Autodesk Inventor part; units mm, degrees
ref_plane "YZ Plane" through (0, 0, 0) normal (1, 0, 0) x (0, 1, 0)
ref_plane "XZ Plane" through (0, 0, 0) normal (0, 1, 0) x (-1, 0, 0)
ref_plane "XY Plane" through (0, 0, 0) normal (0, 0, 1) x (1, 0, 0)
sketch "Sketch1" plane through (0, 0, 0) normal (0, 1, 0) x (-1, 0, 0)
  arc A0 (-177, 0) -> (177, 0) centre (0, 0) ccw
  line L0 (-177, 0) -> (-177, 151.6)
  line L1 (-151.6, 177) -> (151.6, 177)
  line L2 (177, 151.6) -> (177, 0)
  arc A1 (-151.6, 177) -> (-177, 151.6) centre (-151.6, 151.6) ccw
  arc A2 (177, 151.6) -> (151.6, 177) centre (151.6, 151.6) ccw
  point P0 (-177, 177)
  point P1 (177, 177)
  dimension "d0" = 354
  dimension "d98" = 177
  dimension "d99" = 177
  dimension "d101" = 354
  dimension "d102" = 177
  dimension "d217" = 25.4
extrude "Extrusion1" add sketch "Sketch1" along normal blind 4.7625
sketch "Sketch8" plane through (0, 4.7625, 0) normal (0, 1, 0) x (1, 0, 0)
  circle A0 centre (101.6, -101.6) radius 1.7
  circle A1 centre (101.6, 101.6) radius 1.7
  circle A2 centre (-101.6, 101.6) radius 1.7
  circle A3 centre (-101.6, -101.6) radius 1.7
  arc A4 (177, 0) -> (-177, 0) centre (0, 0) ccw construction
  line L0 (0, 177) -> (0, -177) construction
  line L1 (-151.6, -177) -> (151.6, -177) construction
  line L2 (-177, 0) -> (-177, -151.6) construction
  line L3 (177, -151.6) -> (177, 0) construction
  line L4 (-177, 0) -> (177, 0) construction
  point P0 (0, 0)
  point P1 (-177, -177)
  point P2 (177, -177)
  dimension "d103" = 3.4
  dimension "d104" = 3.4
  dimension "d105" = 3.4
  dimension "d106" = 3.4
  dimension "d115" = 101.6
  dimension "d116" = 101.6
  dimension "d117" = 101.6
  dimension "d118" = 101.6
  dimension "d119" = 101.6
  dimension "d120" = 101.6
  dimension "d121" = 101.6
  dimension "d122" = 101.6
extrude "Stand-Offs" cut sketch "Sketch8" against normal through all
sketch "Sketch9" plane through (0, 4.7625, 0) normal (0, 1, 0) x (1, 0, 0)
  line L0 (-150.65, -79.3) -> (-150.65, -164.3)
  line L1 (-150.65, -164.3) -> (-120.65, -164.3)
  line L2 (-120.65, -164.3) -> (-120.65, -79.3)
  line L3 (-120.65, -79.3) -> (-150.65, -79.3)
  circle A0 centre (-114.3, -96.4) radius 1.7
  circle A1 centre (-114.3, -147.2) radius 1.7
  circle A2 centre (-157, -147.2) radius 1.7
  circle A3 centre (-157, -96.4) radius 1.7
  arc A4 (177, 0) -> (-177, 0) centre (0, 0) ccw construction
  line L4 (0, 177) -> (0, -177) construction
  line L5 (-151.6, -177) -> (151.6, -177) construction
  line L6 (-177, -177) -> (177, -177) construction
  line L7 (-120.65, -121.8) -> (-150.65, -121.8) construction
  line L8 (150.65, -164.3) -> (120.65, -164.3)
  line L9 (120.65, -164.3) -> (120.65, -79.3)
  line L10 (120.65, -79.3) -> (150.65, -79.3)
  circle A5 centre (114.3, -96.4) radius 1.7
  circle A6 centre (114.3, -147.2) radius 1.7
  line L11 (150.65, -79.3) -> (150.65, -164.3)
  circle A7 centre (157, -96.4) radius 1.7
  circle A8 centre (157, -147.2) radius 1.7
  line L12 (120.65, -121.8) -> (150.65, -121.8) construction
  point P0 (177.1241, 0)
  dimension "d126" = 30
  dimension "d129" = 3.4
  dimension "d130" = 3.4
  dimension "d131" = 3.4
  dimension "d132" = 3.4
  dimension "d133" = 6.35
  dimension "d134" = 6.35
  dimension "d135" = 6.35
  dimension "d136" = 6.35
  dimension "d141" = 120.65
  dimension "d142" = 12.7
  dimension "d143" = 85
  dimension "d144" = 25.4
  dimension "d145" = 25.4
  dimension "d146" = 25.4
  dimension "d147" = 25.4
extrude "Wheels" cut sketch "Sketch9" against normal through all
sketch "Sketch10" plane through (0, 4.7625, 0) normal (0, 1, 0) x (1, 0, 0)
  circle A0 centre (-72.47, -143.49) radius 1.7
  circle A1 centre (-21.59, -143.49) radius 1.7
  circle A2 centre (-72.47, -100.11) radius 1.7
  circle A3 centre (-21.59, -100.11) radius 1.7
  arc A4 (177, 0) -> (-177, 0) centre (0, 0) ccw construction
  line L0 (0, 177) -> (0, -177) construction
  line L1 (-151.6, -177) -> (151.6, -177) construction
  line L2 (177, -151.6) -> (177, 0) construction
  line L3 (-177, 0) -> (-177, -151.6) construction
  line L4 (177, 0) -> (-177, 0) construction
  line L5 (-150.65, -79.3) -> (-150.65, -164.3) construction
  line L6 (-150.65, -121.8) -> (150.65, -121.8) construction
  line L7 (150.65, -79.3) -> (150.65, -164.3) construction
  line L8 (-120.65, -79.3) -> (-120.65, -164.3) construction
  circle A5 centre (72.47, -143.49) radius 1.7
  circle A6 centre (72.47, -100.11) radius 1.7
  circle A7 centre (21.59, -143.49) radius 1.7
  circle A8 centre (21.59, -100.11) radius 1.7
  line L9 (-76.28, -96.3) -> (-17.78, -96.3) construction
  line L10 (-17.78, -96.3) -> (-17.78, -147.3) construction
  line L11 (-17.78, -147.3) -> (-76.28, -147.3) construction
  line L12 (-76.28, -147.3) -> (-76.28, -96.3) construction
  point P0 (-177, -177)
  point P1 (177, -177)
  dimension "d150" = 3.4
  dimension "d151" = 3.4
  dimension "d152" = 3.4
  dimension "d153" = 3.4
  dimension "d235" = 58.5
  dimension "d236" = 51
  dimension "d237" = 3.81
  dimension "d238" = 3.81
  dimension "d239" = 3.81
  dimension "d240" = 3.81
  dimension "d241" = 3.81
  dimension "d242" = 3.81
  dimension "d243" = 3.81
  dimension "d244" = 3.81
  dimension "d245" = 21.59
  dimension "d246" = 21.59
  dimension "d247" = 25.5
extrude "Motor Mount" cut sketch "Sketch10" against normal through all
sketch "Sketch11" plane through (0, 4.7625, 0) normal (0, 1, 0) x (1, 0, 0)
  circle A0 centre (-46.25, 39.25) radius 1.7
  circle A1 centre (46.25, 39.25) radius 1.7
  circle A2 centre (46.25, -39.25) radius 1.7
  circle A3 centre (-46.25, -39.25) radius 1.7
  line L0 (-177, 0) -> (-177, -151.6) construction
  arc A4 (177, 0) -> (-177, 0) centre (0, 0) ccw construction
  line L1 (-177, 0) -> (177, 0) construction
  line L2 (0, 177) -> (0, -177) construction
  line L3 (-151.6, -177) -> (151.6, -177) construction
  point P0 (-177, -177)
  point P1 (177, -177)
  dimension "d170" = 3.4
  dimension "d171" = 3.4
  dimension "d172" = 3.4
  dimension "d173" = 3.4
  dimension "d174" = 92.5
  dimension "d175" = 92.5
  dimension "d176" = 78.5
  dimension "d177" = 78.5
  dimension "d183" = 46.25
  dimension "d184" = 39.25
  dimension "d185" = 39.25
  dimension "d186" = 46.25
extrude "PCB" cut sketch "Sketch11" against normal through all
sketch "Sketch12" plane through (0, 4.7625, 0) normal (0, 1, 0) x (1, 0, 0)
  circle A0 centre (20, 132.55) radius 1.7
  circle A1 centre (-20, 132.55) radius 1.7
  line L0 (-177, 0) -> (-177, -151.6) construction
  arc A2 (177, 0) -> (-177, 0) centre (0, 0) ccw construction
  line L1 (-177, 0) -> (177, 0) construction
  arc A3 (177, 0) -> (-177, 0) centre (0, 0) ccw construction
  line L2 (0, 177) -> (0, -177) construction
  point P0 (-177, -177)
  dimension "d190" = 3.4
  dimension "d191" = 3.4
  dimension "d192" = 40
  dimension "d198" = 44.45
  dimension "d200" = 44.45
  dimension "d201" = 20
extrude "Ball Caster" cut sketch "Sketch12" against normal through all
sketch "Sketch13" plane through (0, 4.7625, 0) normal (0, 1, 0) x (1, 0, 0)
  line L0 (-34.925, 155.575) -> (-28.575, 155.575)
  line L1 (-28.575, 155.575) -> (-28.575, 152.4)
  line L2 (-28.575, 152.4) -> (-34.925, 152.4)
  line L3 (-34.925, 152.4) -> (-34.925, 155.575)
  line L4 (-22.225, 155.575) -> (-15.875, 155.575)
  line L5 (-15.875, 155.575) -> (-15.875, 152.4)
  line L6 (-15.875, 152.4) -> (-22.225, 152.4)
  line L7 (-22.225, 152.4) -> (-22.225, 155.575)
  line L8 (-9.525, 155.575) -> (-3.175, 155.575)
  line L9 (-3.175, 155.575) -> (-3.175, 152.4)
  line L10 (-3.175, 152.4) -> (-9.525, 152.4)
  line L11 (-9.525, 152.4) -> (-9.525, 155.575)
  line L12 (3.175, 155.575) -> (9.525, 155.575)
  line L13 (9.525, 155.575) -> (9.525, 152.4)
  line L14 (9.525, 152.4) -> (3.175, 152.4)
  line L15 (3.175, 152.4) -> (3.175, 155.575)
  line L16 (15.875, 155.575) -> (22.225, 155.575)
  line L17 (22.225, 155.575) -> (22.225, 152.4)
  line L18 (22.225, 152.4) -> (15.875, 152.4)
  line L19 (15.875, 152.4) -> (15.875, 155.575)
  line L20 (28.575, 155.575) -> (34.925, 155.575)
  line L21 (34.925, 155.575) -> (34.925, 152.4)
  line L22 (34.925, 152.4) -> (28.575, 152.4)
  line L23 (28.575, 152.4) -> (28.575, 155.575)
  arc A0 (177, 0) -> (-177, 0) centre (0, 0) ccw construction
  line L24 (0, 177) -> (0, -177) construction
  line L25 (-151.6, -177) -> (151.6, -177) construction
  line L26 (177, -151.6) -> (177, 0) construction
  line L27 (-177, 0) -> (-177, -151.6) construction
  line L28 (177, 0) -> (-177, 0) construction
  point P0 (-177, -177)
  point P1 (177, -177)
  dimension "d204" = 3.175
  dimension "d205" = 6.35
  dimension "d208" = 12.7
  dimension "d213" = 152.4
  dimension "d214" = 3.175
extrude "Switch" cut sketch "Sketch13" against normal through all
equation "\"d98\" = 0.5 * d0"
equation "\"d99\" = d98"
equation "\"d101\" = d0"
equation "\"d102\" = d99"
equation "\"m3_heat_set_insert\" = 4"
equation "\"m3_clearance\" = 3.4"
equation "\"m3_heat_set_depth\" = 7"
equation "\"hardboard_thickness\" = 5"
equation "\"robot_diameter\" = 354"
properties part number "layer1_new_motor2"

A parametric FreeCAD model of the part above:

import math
import FreeCAD as App
import Part
import Sketcher
Q = App.Units.Quantity


def add_polygon(sketch, points):
    """Adds a closed chain of lines whose ends are joined by coincident constraints."""
    first, n = sketch.GeometryCount, len(points)
    for a, b in zip(points, points[1:] + points[:1]):
        sketch.addGeometry(Part.LineSegment(App.Vector(*a, 0), App.Vector(*b, 0)), False)
    for i in range(n):
        sketch.addConstraint(Sketcher.Constraint("Coincident", first + i, 2, first + (i + 1) % n, 1))

doc = App.newDocument("Part")
params = doc.addObject("Spreadsheet::Sheet", "Params")
for row, (alias, value) in enumerate([
    ("sketch1_radius", "1 in"),
    ("pad1_length", "0.1875 in"),
    ("sketch7_width", "0.25 in"),
    ("sketch7_height", "0.125 in"),
], start=1):
    params.set(f"A{row}", alias)
    params.set(f"B{row}", "=" + value)
    params.setAlias(f"B{row}", alias)

body = doc.addObject("PartDesign::Body", "Body")

# Sketch on XZ plane
sketch1 = body.newObject("Sketcher::SketchObject", "Sketch")
sketch1.AttachmentSupport = (doc.getObject("XZ_Plane"), [""])
sketch1.MapMode = "FlatFace"
sketch1.addGeometry([
    Part.LineSegment(App.Vector(177, 152, 0), App.Vector(177, 0, 0)),  # 0
    Part.ArcOfCircle(Part.Circle(App.Vector(0, 0, 0), App.Vector(0, 0, 1), 177), math.radians(180), math.radians(360)),  # 1
    Part.LineSegment(App.Vector(-177, 0, 0), App.Vector(-177, 152, 0)),  # 2
    Part.ArcOfCircle(Part.Circle(App.Vector(-152, 152, 0), App.Vector(0, 0, 1), 25), math.radians(90), math.radians(180)),  # 3
    Part.LineSegment(App.Vector(-152, 177, 0), App.Vector(152, 177, 0)),  # 4
    Part.ArcOfCircle(Part.Circle(App.Vector(152, 152, 0), App.Vector(0, 0, 1), 25), math.radians(0), math.radians(90)),  # 5
], False)
sketch1.addConstraint([
    Sketcher.Constraint("Tangent", 0, 2, 1, 2),
    Sketcher.Constraint("Tangent", 1, 1, 2, 1),
    Sketcher.Constraint("Tangent", 2, 2, 3, 2),
    Sketcher.Constraint("Tangent", 3, 1, 4, 1),
    Sketcher.Constraint("Tangent", 4, 2, 5, 2),
    Sketcher.Constraint("Tangent", 5, 1, 0, 1),
    Sketcher.Constraint("Vertical", 0),
    Sketcher.Constraint("Vertical", 2),
    Sketcher.Constraint("Horizontal", 4),
    Sketcher.Constraint("Coincident", 1, 3, -1, 1),
    Sketcher.Constraint("Equal", 3, 5),
    Sketcher.Constraint("Radius", 3, Q("1 in")),
    Sketcher.Constraint("Radius", 1, Q("6.9685 in")),
    Sketcher.Constraint("DistanceY", -1, 1, 3, 1, Q("6.9685 in")),
])
sketch1.setExpression("Constraints[11]", "Params.sketch1_radius")
pad1 = body.newObject("PartDesign::Pad", "Pad")
pad1.Profile = sketch1
pad1.setExpression("Length", "Params.pad1_length")
pad1.Reversed = True

# Sketch on XZ plane
sketch2 = body.newObject("Sketcher::SketchObject", "Sketch001")
sketch2.AttachmentSupport = (doc.getObject("XZ_Plane"), [""])
sketch2.MapMode = "FlatFace"
sketch2.AttachmentOffset = App.Placement(App.Vector(0, 0, -0.1875 * 25.4), App.Rotation())
sketch2.addGeometry([
    Part.Circle(App.Vector(101.6, 101.6, 0), App.Vector(0, 0, 1), 1.7),
    Part.Circle(App.Vector(101.6, -101.6, 0), App.Vector(0, 0, 1), 1.7),
    Part.Circle(App.Vector(-101.6, -101.6, 0), App.Vector(0, 0, 1), 1.7),
    Part.Circle(App.Vector(-101.6, 101.6, 0), App.Vector(0, 0, 1), 1.7),
], False)
sketch2.addConstraint([
    Sketcher.Constraint("Equal", 0, 1),
    Sketcher.Constraint("Equal", 1, 2),
    Sketcher.Constraint("Equal", 2, 3),
    Sketcher.Constraint("Symmetric", 0, 3, 2, 3, -1, 1),
    Sketcher.Constraint("Symmetric", 1, 3, 3, 3, -1, 1),
    Sketcher.Constraint("Symmetric", 1, 3, 2, 3, -2),
    Sketcher.Constraint("DistanceX", -1, 1, 0, 3, Q("4 in")),
    Sketcher.Constraint("DistanceY", -1, 1, 0, 3, Q("4 in")),
    Sketcher.Constraint("Diameter", 0, Q("3.4 mm")),
])
pocket1 = body.newObject("PartDesign::Pocket", "Pocket")
pocket1.Profile = sketch2
pocket1.Type = "ThroughAll"
pocket1.Reversed = True

# Sketch on XZ plane
sketch3 = body.newObject("Sketcher::SketchObject", "Sketch002")
sketch3.AttachmentSupport = (doc.getObject("XZ_Plane"), [""])
sketch3.MapMode = "FlatFace"
sketch3.AttachmentOffset = App.Placement(App.Vector(0, 0, -0.1875 * 25.4), App.Rotation())
add_polygon(sketch3, [(-120.7, 79.3), (-150.7, 79.3), (-150.7, 164.3), (-120.7, 164.3)])  # lines 0-3
sketch3.addGeometry(Part.Circle(App.Vector(-114.3, 96.4, 0), App.Vector(0, 0, 1), 1.7), False)  # 4
sketch3.addGeometry(Part.Circle(App.Vector(-114.3, 147.2, 0), App.Vector(0, 0, 1), 1.7), False)  # 5
sketch3.addGeometry(Part.Circle(App.Vector(-157, 147.2, 0), App.Vector(0, 0, 1), 1.7), False)  # 6
sketch3.addGeometry(Part.Circle(App.Vector(-157, 96.4, 0), App.Vector(0, 0, 1), 1.7), False)  # 7
add_polygon(sketch3, [(120.7, 164.3), (150.7, 164.3), (150.7, 79.3), (120.7, 79.3)])  # lines 8-11
sketch3.addGeometry(Part.Circle(App.Vector(114.3, 96.4, 0), App.Vector(0, 0, 1), 1.7), False)  # 12
sketch3.addGeometry(Part.Circle(App.Vector(114.3, 147.2, 0), App.Vector(0, 0, 1), 1.7), False)  # 13
sketch3.addGeometry(Part.Circle(App.Vector(157, 96.4, 0), App.Vector(0, 0, 1), 1.7), False)  # 14
sketch3.addGeometry(Part.Circle(App.Vector(157, 147.2, 0), App.Vector(0, 0, 1), 1.7), False)  # 15
sketch3.addConstraint([
    Sketcher.Constraint("Horizontal", 0),
    Sketcher.Constraint("Vertical", 1),
    Sketcher.Constraint("Horizontal", 2),
    Sketcher.Constraint("Vertical", 3),
    Sketcher.Constraint("Horizontal", 8),
    Sketcher.Constraint("Vertical", 9),
    Sketcher.Constraint("Horizontal", 10),
    Sketcher.Constraint("Vertical", 11),
    Sketcher.Constraint("Equal", 4, 5),
    Sketcher.Constraint("Equal", 5, 6),
    Sketcher.Constraint("Equal", 6, 7),
    Sketcher.Constraint("Equal", 7, 12),
    Sketcher.Constraint("Equal", 12, 13),
    Sketcher.Constraint("Equal", 13, 14),
    Sketcher.Constraint("Equal", 14, 15),
    Sketcher.Constraint("Symmetric", 4, 3, 12, 3, -2),
    Sketcher.Constraint("Symmetric", 5, 3, 13, 3, -2),
    Sketcher.Constraint("Symmetric", 7, 3, 14, 3, -2),
    Sketcher.Constraint("Symmetric", 6, 3, 15, 3, -2),
    Sketcher.Constraint("Symmetric", 1, 2, 8, 2, -2),
    Sketcher.Constraint("Symmetric", 3, 2, 10, 2, -2),
    Sketcher.Constraint("Horizontal", 5, 3, 6, 3),
    Sketcher.Constraint("Horizontal", 4, 3, 7, 3),
    Sketcher.Constraint("Vertical", 4, 3, 5, 3),
    Sketcher.Constraint("Vertical", 6, 3, 7, 3),
    Sketcher.Constraint("Diameter", 4, Q("3.4 mm")),
    Sketcher.Constraint("DistanceX", 2, 2, -1, 1, Q("4.75 in")),
    Sketcher.Constraint("DistanceX", 7, 3, 0, 2, Q("0.25 in")),
    Sketcher.Constraint("DistanceX", 2, 2, 5, 3, Q("0.25 in")),
    Sketcher.Constraint("DistanceX", 0, 2, 0, 1, Q("1.1811 in")),
    Sketcher.Constraint("DistanceY", 4, 3, 5, 3, Q("2 in")),
    Sketcher.Constraint("DistanceY", 1, 1, 1, 2, Q("85 mm")),
    Sketcher.Constraint("DistanceY", -1, 1, 1, 2, Q("6.4685 in")),
    Sketcher.Constraint("DistanceY", -1, 1, 4, 3, Q("96.4 mm")),
])
pocket2 = body.newObject("PartDesign::Pocket", "Pocket001")
pocket2.Profile = sketch3
pocket2.Type = "ThroughAll"
pocket2.Reversed = True

# Sketch on XZ plane
sketch4 = body.newObject("Sketcher::SketchObject", "Sketch003")
sketch4.AttachmentSupport = (doc.getObject("XZ_Plane"), [""])
sketch4.MapMode = "FlatFace"
sketch4.AttachmentOffset = App.Placement(App.Vector(0, 0, -0.1875 * 25.4), App.Rotation())
sketch4.addGeometry([
    Part.Circle(App.Vector(-72.5, 143.5, 0), App.Vector(0, 0, 1), 1.7),  # 0
    Part.Circle(App.Vector(-21.6, 143.5, 0), App.Vector(0, 0, 1), 1.7),  # 1
    Part.Circle(App.Vector(-72.5, 100.1, 0), App.Vector(0, 0, 1), 1.7),  # 2
    Part.Circle(App.Vector(-21.6, 100.1, 0), App.Vector(0, 0, 1), 1.7),  # 3
    Part.Circle(App.Vector(72.5, 143.5, 0), App.Vector(0, 0, 1), 1.7),  # 4
    Part.Circle(App.Vector(72.5, 100.1, 0), App.Vector(0, 0, 1), 1.7),  # 5
    Part.Circle(App.Vector(21.6, 143.5, 0), App.Vector(0, 0, 1), 1.7),  # 6
    Part.Circle(App.Vector(21.6, 100.1, 0), App.Vector(0, 0, 1), 1.7),  # 7
], False)
sketch4.addConstraint([
    Sketcher.Constraint("Equal", 0, 1),
    Sketcher.Constraint("Equal", 1, 2),
    Sketcher.Constraint("Equal", 2, 3),
    Sketcher.Constraint("Equal", 3, 4),
    Sketcher.Constraint("Equal", 4, 5),
    Sketcher.Constraint("Equal", 5, 6),
    Sketcher.Constraint("Equal", 6, 7),
    Sketcher.Constraint("Symmetric", 0, 3, 4, 3, -2),
    Sketcher.Constraint("Symmetric", 2, 3, 5, 3, -2),
    Sketcher.Constraint("Symmetric", 1, 3, 6, 3, -2),
    Sketcher.Constraint("Symmetric", 3, 3, 7, 3, -2),
    Sketcher.Constraint("Horizontal", 0, 3, 1, 3),
    Sketcher.Constraint("Horizontal", 2, 3, 3, 3),
    Sketcher.Constraint("Vertical", 0, 3, 2, 3),
    Sketcher.Constraint("Vertical", 1, 3, 3, 3),
    Sketcher.Constraint("Diameter", 0, Q("3.4 mm")),
    Sketcher.Constraint("DistanceX", 1, 3, -1, 1, Q("0.85 in")),
    Sketcher.Constraint("DistanceX", 0, 3, 4, 3, Q("5.7063 in")),
    Sketcher.Constraint("DistanceY", -1, 1, 0, 3, Q("143.49 mm")),
    Sketcher.Constraint("DistanceY", -1, 1, 2, 3, Q("100.11 mm")),
])
pocket3 = body.newObject("PartDesign::Pocket", "Pocket002")
pocket3.Profile = sketch4
pocket3.Type = "ThroughAll"
pocket3.Reversed = True

# Sketch on XZ plane
sketch5 = body.newObject("Sketcher::SketchObject", "Sketch004")
sketch5.AttachmentSupport = (doc.getObject("XZ_Plane"), [""])
sketch5.MapMode = "FlatFace"
sketch5.AttachmentOffset = App.Placement(App.Vector(0, 0, -0.1875 * 25.4), App.Rotation())
sketch5.addGeometry([
    Part.Circle(App.Vector(-46.2, -39.2, 0), App.Vector(0, 0, 1), 1.7),
    Part.Circle(App.Vector(46.2, -39.2, 0), App.Vector(0, 0, 1), 1.7),
    Part.Circle(App.Vector(46.2, 39.2, 0), App.Vector(0, 0, 1), 1.7),
    Part.Circle(App.Vector(-46.2, 39.2, 0), App.Vector(0, 0, 1), 1.7),
], False)
sketch5.addConstraint([
    Sketcher.Constraint("Equal", 0, 1),
    Sketcher.Constraint("Equal", 1, 2),
    Sketcher.Constraint("Equal", 2, 3),
    Sketcher.Constraint("Symmetric", 0, 3, 2, 3, -1, 1),
    Sketcher.Constraint("Symmetric", 1, 3, 3, 3, -1, 1),
    Sketcher.Constraint("Symmetric", 0, 3, 1, 3, -2),
    Sketcher.Constraint("Diameter", 0, Q("3.4 mm")),
    Sketcher.Constraint("DistanceX", 0, 3, -1, 1, Q("46.25 mm")),
    Sketcher.Constraint("DistanceY", 0, 3, -1, 1, Q("39.25 mm")),
])
pocket4 = body.newObject("PartDesign::Pocket", "Pocket003")
pocket4.Profile = sketch5
pocket4.Type = "ThroughAll"
pocket4.Reversed = True

# Sketch on XZ plane
sketch6 = body.newObject("Sketcher::SketchObject", "Sketch005")
sketch6.AttachmentSupport = (doc.getObject("XZ_Plane"), [""])
sketch6.MapMode = "FlatFace"
sketch6.AttachmentOffset = App.Placement(App.Vector(0, 0, -0.1875 * 25.4), App.Rotation())
sketch6.addGeometry([
    Part.Circle(App.Vector(20, -132.6, 0), App.Vector(0, 0, 1), 1.7),
    Part.Circle(App.Vector(-20, -132.6, 0), App.Vector(0, 0, 1), 1.7),
], False)
sketch6.addConstraint([
    Sketcher.Constraint("Equal", 0, 1),
    Sketcher.Constraint("Symmetric", 0, 3, 1, 3, -2),
    Sketcher.Constraint("Diameter", 0, Q("3.4 mm")),
    Sketcher.Constraint("DistanceX", -1, 1, 0, 3, Q("0.7874 in")),
    Sketcher.Constraint("DistanceY", 0, 3, -1, 1, Q("5.2185 in")),
])
pocket5 = body.newObject("PartDesign::Pocket", "Pocket004")
pocket5.Profile = sketch6
pocket5.Type = "ThroughAll"
pocket5.Reversed = True

# Sketch on XZ plane
sketch7 = body.newObject("Sketcher::SketchObject", "Sketch006")
sketch7.AttachmentSupport = (doc.getObject("XZ_Plane"), [""])
sketch7.MapMode = "FlatFace"
sketch7.AttachmentOffset = App.Placement(App.Vector(0, 0, -0.1875 * 25.4), App.Rotation())
add_polygon(sketch7, [(-28.6, -155.6), (-34.9, -155.6), (-34.9, -152.4), (-28.6, -152.4)])  # lines 0-3
add_polygon(sketch7, [(-15.9, -155.6), (-22.2, -155.6), (-22.2, -152.4), (-15.9, -152.4)])  # lines 4-7
add_polygon(sketch7, [(-3.2, -155.6), (-9.5, -155.6), (-9.5, -152.4), (-3.2, -152.4)])  # lines 8-11
add_polygon(sketch7, [(9.5, -155.6), (3.2, -155.6), (3.2, -152.4), (9.5, -152.4)])  # lines 12-15
add_polygon(sketch7, [(22.2, -155.6), (15.9, -155.6), (15.9, -152.4), (22.2, -152.4)])  # lines 16-19
add_polygon(sketch7, [(34.9, -155.6), (28.6, -155.6), (28.6, -152.4), (34.9, -152.4)])  # lines 20-23
sketch7.addConstraint([
    Sketcher.Constraint("Horizontal", 0),
    Sketcher.Constraint("Vertical", 1),
    Sketcher.Constraint("Horizontal", 2),
    Sketcher.Constraint("Vertical", 3),
    Sketcher.Constraint("Horizontal", 4),
    Sketcher.Constraint("Vertical", 5),
    Sketcher.Constraint("Horizontal", 6),
    Sketcher.Constraint("Vertical", 7),
    Sketcher.Constraint("Horizontal", 8),
    Sketcher.Constraint("Vertical", 9),
    Sketcher.Constraint("Horizontal", 10),
    Sketcher.Constraint("Vertical", 11),
    Sketcher.Constraint("Horizontal", 12),
    Sketcher.Constraint("Vertical", 13),
    Sketcher.Constraint("Horizontal", 14),
    Sketcher.Constraint("Vertical", 15),
    Sketcher.Constraint("Horizontal", 16),
    Sketcher.Constraint("Vertical", 17),
    Sketcher.Constraint("Horizontal", 18),
    Sketcher.Constraint("Vertical", 19),
    Sketcher.Constraint("Horizontal", 20),
    Sketcher.Constraint("Vertical", 21),
    Sketcher.Constraint("Horizontal", 22),
    Sketcher.Constraint("Vertical", 23),
    Sketcher.Constraint("Symmetric", 11, 2, 12, 2, -2),
    Sketcher.Constraint("Symmetric", 9, 2, 14, 2, -2),
    Sketcher.Constraint("Symmetric", 7, 2, 16, 2, -2),
    Sketcher.Constraint("Symmetric", 5, 2, 18, 2, -2),
    Sketcher.Constraint("Symmetric", 3, 2, 20, 2, -2),
    Sketcher.Constraint("Symmetric", 1, 2, 22, 2, -2),
    Sketcher.Constraint("Horizontal", 3, 2, 4, 2),
    Sketcher.Constraint("Horizontal", 2, 2, 5, 2),
    Sketcher.Constraint("Horizontal", 7, 2, 8, 2),
    Sketcher.Constraint("Horizontal", 6, 2, 9, 2),
    Sketcher.Constraint("Equal", 2, 4),
    Sketcher.Constraint("Equal", 6, 8),
    Sketcher.Constraint("DistanceY", 1, 2, -1, 1, Q("6 in")),
    Sketcher.Constraint("DistanceX", 0, 2, 0, 1, Q("0.25 in")),
    Sketcher.Constraint("DistanceX", 0, 2, 4, 2, Q("0.5 in")),
    Sketcher.Constraint("DistanceX", 4, 2, 8, 2, Q("0.5 in")),
    Sketcher.Constraint("DistanceX", 8, 2, 12, 2, Q("0.5 in")),
    Sketcher.Constraint("DistanceY", 1, 1, 1, 2, Q("0.125 in")),
])
sketch7.setExpression("Constraints[61]", "Params.sketch7_width")
sketch7.setExpression("Constraints[65]", "Params.sketch7_height")
pocket6 = body.newObject("PartDesign::Pocket", "Pocket005")
pocket6.Profile = sketch7
pocket6.Type = "ThroughAll"
pocket6.Reversed = True

doc.recompute()
